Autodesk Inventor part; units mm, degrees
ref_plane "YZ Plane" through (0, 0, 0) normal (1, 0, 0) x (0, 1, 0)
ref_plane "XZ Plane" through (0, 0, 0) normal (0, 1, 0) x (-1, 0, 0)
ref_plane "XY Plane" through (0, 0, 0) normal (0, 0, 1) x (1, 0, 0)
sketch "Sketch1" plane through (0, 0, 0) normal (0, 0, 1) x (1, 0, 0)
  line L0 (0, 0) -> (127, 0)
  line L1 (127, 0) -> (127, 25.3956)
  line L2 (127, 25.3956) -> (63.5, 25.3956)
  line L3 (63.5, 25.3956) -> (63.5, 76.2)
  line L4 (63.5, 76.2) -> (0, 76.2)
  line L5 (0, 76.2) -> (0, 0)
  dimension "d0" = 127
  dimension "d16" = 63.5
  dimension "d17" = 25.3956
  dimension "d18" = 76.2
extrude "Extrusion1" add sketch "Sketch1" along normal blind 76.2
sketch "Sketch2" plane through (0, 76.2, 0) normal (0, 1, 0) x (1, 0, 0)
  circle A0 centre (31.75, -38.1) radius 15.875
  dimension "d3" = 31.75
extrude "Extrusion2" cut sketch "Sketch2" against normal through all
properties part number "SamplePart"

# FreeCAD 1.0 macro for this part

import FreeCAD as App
import Part
import Sketcher
Q = App.Units.Quantity


def add_polygon(sketch, points):
    """Adds a closed chain of lines whose ends are joined by coincident constraints."""
    first, n = sketch.GeometryCount, len(points)
    for a, b in zip(points, points[1:] + points[:1]):
        sketch.addGeometry(Part.LineSegment(App.Vector(*a, 0), App.Vector(*b, 0)), False)
    for i in range(n):
        sketch.addConstraint(Sketcher.Constraint("Coincident", first + i, 2, first + (i + 1) % n, 1))

doc = App.newDocument("Part")
body = doc.addObject("PartDesign::Body", "Body")

sketch1 = body.newObject("Sketcher::SketchObject", "Sketch")
sketch1.AttachmentSupport = (doc.getObject("XY_Plane"), [""])
sketch1.MapMode = "FlatFace"
add_polygon(sketch1, [(0, 76), (0, 0), (127, 0), (127, 25), (64, 25), (64, 76)])
sketch1.addConstraint([
    Sketcher.Constraint("Vertical", 0),
    Sketcher.Constraint("Horizontal", 1),
    Sketcher.Constraint("Vertical", 2),
    Sketcher.Constraint("Horizontal", 3),
    Sketcher.Constraint("Vertical", 4),
    Sketcher.Constraint("Horizontal", 5),
    Sketcher.Constraint("Coincident", 0, 2, -1, 1),
    Sketcher.Constraint("Equal", 3, 5),
    Sketcher.Constraint("DistanceX", 1, 1, 1, 2, Q("5 in")),
    Sketcher.Constraint("DistanceY", 0, 2, 0, 1, Q("3 in")),
    Sketcher.Constraint("DistanceY", 2, 1, 2, 2, Q("25.3956 mm")),
])
pad1 = body.newObject("PartDesign::Pad", "Pad")
pad1.Profile = sketch1
pad1.Length = Q("3 in")

sketch2 = body.newObject("Sketcher::SketchObject", "Sketch001")
sketch2.AttachmentSupport = (doc.getObject("XZ_Plane"), [""])
sketch2.MapMode = "FlatFace"
sketch2.AttachmentOffset = App.Placement(App.Vector(0, 0, -3 * 25.4), App.Rotation())
sketch2.addGeometry(Part.Circle(App.Vector(32, 38, 0), App.Vector(0, 0, 1), 16), False)
sketch2.addConstraint([
    Sketcher.Constraint("Diameter", 0, Q("1.25 in")),
    Sketcher.Constraint("DistanceX", -1, 1, 0, 3, Q("1.25 in")),
    Sketcher.Constraint("DistanceY", -1, 1, 0, 3, Q("1.5 in")),
])
pocket1 = body.newObject("PartDesign::Pocket", "Pocket")
pocket1.Profile = sketch2
pocket1.Type = "ThroughAll"
pocket1.Reversed = True

doc.recompute()
